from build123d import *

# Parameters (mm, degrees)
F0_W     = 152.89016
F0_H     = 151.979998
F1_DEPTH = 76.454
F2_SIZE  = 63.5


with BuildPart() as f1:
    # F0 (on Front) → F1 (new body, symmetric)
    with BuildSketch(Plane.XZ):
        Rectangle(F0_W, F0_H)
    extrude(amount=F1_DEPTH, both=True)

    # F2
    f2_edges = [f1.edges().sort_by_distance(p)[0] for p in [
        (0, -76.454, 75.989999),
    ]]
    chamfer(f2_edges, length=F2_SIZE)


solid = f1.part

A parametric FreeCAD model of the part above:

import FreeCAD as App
import Part
import Sketcher

V = App.Vector


def edges_at(feature, points):
    """Names of the edges that pass closest to the given points."""
    edges = feature.Shape.Edges
    near = lambda p: min(range(len(edges)), key=lambda i: edges[i].distToShape(Part.Vertex(*p))[0])
    return sorted({f"Edge{near(p) + 1}" for p in points})


def add_polygon(sketch, points):
    """Adds a closed chain of lines whose ends are joined by coincident constraints."""
    first, n = sketch.GeometryCount, len(points)
    for a, b in zip(points, points[1:] + points[:1]):
        sketch.addGeometry(Part.LineSegment(App.Vector(*a, 0), App.Vector(*b, 0)), False)
    for i in range(n):
        sketch.addConstraint(Sketcher.Constraint("Coincident", first + i, 2, first + (i + 1) % n, 1))

doc = App.newDocument("Part")
params = doc.addObject("Spreadsheet::Sheet", "Params")
for row, (alias, value) in enumerate([
    ("pad1_length", "6.02 in"),
    ("chamfer_size", "2.5 in"),
], start=1):
    params.set(f"A{row}", alias)
    params.set(f"B{row}", "=" + value)
    params.setAlias(f"B{row}", alias)

body = doc.addObject("PartDesign::Body", "Body")

# Sketch on XZ plane
sketch1 = body.newObject("Sketcher::SketchObject", "Sketch")
sketch1.AttachmentSupport = (doc.getObject("XZ_Plane"), [""])
sketch1.MapMode = "FlatFace"
add_polygon(sketch1, [(-76, 76), (-76, -76), (76, -76), (76, 76)])  # lines 0-3
sketch1.addConstraint(Sketcher.Constraint("Vertical", 0))
sketch1.addConstraint(Sketcher.Constraint("Horizontal", 1))
sketch1.addConstraint(Sketcher.Constraint("Vertical", 2))
sketch1.addConstraint(Sketcher.Constraint("Horizontal", 3))
sketch1.addConstraint(Sketcher.Constraint("Symmetric", 0, 2, 2, 2, -1, 1))
sketch1.addConstraint(Sketcher.Constraint("DistanceY", 0, 2, 0, 1, 151.979998))
sketch1.addConstraint(Sketcher.Constraint("DistanceX", 1, 1, 1, 2, 152.89016))
pad1 = body.newObject("PartDesign::Pad", "Pad")
pad1.Profile = sketch1
pad1.setExpression("Length", "Params.pad1_length")
pad1.Midplane = True
doc.recompute()

chamfer = body.newObject("PartDesign::Chamfer", "Chamfer")
chamfer.Base = (pad1, edges_at(pad1, [(0, -76.454, 75.99)]))
chamfer.setExpression("Size", "Params.chamfer_size")

doc.recompute()
